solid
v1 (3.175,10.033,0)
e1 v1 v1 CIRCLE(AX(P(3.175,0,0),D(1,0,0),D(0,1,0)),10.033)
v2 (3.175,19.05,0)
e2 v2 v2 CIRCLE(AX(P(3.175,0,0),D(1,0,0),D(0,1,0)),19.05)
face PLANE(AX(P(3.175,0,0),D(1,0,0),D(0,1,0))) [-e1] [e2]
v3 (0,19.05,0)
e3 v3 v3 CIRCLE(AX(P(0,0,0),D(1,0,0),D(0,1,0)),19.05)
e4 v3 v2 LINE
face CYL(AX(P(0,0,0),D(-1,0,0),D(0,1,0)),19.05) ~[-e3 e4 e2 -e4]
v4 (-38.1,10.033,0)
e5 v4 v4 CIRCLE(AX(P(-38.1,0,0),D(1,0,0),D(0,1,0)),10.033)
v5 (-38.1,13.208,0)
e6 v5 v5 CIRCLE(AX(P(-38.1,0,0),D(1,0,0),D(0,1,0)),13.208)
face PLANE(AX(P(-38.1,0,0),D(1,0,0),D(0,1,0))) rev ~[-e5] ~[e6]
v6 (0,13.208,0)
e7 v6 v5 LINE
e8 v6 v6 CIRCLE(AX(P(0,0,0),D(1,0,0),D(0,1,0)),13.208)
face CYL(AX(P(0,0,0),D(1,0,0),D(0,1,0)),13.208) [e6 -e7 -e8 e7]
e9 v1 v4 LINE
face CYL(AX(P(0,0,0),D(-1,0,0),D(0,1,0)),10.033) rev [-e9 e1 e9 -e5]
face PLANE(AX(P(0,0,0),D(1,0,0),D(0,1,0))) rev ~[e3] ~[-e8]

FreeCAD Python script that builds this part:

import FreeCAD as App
import Part
import Sketcher
Q = App.Units.Quantity

doc = App.newDocument("Part")
body = doc.addObject("PartDesign::Body", "Body")

# Sketch on YZ plane
sketch1 = body.newObject("Sketcher::SketchObject", "Sketch")
sketch1.AttachmentSupport = (doc.getObject("YZ_Plane"), [""])
sketch1.MapMode = "FlatFace"
sketch1.addGeometry(Part.Circle(App.Vector(0, 0, 0), App.Vector(0, 0, 1), 13), False)
sketch1.addGeometry(Part.Circle(App.Vector(0, 0, 0), App.Vector(0, 0, 1), 10), False)
sketch1.addConstraint(Sketcher.Constraint("Coincident", 0, 3, -1, 1))
sketch1.addConstraint(Sketcher.Constraint("Coincident", 1, 3, -1, 1))
sketch1.addConstraint(Sketcher.Constraint("Diameter", 0, Q("1.04 in")))
sketch1.addConstraint(Sketcher.Constraint("Diameter", 1, Q("0.79 in")))
pad1 = body.newObject("PartDesign::Pad", "Pad")
pad1.Profile = sketch1
pad1.Length = Q("1.5 in")
pad1.Reversed = True

# Sketch on YZ plane
sketch2 = body.newObject("Sketcher::SketchObject", "Sketch001")
sketch2.AttachmentSupport = (doc.getObject("YZ_Plane"), [""])
sketch2.MapMode = "FlatFace"
sketch2.addGeometry(Part.Circle(App.Vector(0, 0, 0), App.Vector(0, 0, 1), 19), False)
sketch2.addGeometry(Part.Circle(App.Vector(0, 0, 0), App.Vector(0, 0, 1), 10), False)
sketch2.addConstraint(Sketcher.Constraint("Coincident", 0, 3, -1, 1))
sketch2.addConstraint(Sketcher.Constraint("Coincident", 1, 3, -1, 1))
sketch2.addConstraint(Sketcher.Constraint("Diameter", 0, Q("1.5 in")))
sketch2.addConstraint(Sketcher.Constraint("Diameter", 1, Q("0.79 in")))
pad2 = body.newObject("PartDesign::Pad", "Pad001")
pad2.Profile = sketch2
pad2.Length = Q("0.125 in")

doc.recompute()
